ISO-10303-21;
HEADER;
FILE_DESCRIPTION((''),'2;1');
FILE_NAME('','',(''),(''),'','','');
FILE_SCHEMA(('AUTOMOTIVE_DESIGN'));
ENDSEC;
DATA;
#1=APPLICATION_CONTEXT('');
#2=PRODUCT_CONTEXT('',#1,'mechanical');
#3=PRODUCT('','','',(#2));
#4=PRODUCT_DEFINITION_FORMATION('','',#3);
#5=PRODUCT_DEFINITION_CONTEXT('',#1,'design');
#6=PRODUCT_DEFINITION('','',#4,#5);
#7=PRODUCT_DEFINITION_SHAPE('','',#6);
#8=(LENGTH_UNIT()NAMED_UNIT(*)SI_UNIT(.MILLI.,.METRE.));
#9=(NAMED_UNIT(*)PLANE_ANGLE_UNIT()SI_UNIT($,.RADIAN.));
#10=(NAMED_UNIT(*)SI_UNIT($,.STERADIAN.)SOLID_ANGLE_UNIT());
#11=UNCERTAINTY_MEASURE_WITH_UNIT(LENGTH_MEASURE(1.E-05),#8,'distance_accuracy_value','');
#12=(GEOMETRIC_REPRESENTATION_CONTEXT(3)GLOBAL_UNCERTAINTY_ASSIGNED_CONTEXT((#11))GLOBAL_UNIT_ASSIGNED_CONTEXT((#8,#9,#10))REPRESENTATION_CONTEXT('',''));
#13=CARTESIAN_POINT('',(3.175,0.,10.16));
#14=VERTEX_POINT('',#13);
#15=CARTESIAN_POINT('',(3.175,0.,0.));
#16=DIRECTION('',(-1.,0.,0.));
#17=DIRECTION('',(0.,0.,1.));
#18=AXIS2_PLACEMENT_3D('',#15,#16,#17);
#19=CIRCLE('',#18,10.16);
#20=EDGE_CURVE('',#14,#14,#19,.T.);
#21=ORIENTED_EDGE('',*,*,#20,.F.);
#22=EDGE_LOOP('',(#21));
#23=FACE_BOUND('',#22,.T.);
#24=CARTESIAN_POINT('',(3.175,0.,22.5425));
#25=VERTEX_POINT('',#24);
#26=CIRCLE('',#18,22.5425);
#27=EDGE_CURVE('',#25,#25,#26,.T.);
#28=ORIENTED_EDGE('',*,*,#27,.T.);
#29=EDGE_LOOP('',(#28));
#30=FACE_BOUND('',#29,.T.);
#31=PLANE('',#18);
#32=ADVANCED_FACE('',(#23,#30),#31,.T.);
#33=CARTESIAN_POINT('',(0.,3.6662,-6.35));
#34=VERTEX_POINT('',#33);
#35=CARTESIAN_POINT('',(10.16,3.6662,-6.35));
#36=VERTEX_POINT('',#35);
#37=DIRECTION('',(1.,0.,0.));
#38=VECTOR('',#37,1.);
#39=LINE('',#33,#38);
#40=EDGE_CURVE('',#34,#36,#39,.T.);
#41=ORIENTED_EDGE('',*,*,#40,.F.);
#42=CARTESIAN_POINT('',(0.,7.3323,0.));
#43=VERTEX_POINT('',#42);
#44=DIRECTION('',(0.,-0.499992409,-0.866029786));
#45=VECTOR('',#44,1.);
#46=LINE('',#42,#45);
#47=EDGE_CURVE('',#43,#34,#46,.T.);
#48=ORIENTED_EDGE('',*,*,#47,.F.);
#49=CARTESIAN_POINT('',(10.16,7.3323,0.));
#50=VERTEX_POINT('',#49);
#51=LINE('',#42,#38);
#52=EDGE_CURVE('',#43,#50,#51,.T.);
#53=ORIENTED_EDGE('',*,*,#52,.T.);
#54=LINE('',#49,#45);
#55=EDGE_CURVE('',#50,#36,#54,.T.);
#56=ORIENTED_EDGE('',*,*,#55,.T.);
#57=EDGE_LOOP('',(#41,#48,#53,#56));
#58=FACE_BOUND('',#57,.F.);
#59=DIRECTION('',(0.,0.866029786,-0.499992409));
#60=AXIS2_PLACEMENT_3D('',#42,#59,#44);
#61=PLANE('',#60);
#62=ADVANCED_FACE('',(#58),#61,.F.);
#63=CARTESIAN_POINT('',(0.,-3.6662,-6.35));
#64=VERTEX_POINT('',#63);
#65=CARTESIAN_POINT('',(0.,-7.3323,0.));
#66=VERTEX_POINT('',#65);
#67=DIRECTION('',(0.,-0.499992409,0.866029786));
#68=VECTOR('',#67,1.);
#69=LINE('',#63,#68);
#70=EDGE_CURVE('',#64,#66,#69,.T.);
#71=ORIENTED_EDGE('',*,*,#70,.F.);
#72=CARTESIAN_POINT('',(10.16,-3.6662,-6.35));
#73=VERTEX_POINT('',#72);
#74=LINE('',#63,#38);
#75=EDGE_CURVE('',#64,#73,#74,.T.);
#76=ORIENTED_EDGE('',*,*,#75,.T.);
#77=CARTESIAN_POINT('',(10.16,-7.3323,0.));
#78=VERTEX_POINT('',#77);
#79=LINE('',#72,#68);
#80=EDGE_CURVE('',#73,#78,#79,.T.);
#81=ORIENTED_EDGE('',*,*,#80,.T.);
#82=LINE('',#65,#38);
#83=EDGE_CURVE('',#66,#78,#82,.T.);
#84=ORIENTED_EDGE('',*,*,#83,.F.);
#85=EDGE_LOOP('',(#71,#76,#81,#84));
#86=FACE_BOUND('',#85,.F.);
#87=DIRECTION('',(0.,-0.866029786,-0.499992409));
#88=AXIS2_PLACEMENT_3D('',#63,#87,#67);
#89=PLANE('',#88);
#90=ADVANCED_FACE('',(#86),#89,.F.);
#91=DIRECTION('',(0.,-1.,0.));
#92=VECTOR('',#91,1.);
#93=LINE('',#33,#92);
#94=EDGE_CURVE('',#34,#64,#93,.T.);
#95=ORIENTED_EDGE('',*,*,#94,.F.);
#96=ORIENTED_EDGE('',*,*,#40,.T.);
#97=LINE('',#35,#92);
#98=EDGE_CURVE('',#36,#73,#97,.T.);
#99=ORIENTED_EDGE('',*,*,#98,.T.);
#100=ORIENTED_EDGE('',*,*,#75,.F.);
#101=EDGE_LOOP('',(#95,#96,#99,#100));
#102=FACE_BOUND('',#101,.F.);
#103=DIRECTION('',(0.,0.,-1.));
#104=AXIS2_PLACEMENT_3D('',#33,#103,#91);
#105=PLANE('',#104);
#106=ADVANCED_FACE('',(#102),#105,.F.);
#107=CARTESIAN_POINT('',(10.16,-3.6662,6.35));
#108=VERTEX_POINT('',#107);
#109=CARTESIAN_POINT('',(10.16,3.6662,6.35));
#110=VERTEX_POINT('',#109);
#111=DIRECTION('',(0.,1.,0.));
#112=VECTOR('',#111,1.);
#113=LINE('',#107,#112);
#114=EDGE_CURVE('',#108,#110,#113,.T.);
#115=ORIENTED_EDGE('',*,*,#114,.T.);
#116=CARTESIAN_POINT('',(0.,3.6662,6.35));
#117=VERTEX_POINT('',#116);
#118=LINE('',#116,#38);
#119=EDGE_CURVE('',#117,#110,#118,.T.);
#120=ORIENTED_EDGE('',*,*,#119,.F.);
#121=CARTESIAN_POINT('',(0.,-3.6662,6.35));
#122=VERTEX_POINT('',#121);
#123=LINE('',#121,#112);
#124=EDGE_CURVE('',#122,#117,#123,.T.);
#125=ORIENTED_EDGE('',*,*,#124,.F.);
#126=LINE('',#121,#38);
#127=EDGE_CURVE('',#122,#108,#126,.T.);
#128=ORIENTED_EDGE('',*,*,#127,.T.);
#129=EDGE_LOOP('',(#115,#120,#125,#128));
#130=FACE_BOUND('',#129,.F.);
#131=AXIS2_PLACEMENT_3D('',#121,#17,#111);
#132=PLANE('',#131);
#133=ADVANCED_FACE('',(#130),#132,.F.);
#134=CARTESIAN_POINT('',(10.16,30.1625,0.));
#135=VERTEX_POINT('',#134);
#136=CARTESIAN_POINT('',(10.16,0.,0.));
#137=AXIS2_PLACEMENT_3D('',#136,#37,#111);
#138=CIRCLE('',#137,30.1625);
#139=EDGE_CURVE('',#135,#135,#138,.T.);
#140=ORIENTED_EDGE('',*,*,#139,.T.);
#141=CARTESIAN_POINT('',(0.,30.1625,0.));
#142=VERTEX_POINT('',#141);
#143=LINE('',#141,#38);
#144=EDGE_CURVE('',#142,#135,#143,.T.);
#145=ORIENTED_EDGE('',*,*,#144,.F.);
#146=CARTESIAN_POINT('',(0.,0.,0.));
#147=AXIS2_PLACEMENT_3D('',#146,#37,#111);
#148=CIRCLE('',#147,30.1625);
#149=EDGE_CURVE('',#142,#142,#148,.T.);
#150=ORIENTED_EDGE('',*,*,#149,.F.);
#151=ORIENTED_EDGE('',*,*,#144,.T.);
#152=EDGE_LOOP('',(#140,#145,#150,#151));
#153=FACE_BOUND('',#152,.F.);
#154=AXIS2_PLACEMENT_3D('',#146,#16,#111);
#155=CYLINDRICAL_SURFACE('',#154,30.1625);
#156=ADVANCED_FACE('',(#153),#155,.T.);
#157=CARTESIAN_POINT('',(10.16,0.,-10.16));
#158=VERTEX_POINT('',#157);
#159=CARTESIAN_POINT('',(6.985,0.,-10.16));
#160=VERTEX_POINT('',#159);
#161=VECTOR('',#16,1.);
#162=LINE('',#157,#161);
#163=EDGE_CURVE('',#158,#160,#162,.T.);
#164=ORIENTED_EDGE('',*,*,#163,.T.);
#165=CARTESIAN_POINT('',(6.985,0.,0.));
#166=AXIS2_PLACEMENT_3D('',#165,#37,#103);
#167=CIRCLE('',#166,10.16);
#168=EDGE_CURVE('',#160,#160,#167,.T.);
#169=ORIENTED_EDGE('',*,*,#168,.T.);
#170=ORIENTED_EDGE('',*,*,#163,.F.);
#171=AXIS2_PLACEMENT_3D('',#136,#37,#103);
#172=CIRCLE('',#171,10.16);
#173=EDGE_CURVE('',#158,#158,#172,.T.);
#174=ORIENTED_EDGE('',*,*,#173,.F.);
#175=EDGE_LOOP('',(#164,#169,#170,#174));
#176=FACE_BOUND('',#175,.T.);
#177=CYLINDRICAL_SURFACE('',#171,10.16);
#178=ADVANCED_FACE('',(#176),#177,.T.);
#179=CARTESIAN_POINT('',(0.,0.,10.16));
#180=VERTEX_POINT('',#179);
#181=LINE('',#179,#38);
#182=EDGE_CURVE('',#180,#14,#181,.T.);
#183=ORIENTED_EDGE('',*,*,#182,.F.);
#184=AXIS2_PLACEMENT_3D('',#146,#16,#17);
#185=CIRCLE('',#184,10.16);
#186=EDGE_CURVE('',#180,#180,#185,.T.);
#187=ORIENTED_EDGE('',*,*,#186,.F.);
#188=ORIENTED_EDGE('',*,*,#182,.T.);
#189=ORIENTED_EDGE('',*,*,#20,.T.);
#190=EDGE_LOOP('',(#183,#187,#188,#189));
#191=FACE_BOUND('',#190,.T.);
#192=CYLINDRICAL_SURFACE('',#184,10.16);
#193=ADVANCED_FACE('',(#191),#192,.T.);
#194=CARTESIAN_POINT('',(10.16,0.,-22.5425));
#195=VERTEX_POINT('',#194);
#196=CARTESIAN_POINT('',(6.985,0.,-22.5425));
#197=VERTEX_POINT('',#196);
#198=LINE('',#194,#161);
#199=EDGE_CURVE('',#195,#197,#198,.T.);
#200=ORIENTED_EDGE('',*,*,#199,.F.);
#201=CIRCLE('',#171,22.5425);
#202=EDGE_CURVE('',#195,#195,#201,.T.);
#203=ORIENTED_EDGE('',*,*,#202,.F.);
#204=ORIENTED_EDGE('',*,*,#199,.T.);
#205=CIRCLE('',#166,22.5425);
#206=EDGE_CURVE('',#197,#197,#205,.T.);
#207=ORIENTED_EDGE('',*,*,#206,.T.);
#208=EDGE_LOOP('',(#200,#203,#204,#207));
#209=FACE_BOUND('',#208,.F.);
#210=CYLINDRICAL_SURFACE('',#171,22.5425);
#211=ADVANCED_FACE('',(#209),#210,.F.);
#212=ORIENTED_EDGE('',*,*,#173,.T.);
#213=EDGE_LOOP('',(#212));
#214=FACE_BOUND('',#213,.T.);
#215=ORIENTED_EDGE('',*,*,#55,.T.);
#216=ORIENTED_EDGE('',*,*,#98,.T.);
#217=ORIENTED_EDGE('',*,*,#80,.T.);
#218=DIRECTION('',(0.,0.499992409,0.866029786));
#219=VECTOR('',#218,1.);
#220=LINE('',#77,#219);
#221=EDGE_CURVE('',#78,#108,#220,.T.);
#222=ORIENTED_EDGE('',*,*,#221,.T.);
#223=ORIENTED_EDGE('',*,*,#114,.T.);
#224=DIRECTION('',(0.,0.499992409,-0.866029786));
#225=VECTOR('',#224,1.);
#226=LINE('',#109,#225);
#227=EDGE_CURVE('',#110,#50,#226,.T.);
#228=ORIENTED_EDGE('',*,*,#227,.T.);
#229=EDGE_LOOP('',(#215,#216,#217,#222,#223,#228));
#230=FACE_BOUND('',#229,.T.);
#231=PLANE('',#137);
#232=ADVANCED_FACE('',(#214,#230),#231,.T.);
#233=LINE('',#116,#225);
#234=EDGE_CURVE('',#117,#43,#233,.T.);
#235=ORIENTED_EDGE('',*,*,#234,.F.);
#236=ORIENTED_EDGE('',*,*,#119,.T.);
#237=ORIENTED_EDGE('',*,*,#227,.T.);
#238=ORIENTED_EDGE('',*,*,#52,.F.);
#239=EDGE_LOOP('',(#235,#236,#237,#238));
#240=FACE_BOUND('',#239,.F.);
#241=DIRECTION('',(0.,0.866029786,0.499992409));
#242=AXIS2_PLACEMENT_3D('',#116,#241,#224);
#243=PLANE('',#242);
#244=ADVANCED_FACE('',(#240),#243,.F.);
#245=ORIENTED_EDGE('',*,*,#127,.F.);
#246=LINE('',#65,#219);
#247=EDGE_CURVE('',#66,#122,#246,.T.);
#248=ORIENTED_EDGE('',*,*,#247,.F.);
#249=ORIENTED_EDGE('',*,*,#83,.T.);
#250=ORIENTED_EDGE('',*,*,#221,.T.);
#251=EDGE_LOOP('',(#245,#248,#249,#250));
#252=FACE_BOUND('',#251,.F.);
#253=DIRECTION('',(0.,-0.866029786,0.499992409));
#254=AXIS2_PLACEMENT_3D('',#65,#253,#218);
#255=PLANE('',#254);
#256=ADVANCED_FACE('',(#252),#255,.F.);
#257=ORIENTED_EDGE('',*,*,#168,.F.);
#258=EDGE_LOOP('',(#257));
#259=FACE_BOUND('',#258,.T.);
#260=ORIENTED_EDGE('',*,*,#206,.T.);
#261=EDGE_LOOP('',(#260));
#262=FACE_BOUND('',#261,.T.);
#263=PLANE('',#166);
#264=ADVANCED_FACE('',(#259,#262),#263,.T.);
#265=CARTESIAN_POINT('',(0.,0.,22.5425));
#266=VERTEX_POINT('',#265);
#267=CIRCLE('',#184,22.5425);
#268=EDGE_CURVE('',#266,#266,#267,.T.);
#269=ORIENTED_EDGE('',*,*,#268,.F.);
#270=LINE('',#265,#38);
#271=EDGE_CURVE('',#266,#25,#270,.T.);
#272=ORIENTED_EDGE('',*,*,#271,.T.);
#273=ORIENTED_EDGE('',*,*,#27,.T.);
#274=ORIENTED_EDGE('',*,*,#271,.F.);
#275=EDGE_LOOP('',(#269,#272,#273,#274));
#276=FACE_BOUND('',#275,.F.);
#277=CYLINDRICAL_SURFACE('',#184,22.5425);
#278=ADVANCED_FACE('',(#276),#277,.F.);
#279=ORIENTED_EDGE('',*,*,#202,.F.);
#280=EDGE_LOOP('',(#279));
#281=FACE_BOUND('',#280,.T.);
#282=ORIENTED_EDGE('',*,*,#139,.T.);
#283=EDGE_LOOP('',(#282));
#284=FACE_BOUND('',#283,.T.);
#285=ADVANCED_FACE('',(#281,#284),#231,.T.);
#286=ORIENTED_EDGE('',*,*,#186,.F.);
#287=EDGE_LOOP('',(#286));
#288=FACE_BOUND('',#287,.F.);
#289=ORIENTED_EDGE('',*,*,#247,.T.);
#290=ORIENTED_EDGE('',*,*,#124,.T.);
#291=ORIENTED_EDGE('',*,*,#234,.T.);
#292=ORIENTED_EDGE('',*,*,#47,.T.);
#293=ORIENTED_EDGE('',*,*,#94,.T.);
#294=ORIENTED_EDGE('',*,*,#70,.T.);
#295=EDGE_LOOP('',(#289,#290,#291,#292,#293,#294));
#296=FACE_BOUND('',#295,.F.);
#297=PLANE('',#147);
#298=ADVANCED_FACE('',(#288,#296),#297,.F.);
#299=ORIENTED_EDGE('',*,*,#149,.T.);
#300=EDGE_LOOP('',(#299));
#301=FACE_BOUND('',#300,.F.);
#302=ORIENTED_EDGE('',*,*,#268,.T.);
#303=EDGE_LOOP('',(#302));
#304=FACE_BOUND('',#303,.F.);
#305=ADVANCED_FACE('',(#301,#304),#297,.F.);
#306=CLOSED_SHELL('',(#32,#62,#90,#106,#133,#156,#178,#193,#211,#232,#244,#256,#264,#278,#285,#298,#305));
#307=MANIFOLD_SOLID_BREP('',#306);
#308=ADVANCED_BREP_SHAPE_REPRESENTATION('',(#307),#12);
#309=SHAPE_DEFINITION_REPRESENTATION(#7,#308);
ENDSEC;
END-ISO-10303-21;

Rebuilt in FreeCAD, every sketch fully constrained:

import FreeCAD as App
import Part
import Sketcher
Q = App.Units.Quantity

doc = App.newDocument("Part")
body = doc.addObject("PartDesign::Body", "Body")

sketch1 = doc.addObject("Sketcher::SketchObject", "Sketch")
body.addObject(sketch1)
sketch1.AttachmentSupport = (doc.YZ_Plane, [""])
sketch1.MapMode = "FlatFace"
sketch1.addGeometry(Part.Circle(App.Vector(0, 0, 0), App.Vector(0, 0, 1), 30), False)
sketch1.addGeometry(Part.LineSegment(App.Vector(4, 6, 0), App.Vector(7, 0, 0)), False)
sketch1.addGeometry(Part.LineSegment(App.Vector(7, 0, 0), App.Vector(4, -6, 0)), False)
sketch1.addGeometry(Part.LineSegment(App.Vector(4, -6, 0), App.Vector(-4, -6, 0)), False)
sketch1.addGeometry(Part.LineSegment(App.Vector(-4, -6, 0), App.Vector(-7, 0, 0)), False)
sketch1.addGeometry(Part.LineSegment(App.Vector(-7, 0, 0), App.Vector(-4, 6, 0)), False)
sketch1.addGeometry(Part.LineSegment(App.Vector(-4, 6, 0), App.Vector(4, 6, 0)), False)
sketch1.addConstraint(Sketcher.Constraint("Coincident", 1, 2, 2, 1))
sketch1.addConstraint(Sketcher.Constraint("Coincident", 2, 2, 3, 1))
sketch1.addConstraint(Sketcher.Constraint("Coincident", 3, 2, 4, 1))
sketch1.addConstraint(Sketcher.Constraint("Coincident", 4, 2, 5, 1))
sketch1.addConstraint(Sketcher.Constraint("Coincident", 5, 2, 6, 1))
sketch1.addConstraint(Sketcher.Constraint("Coincident", 6, 2, 1, 1))
sketch1.addConstraint(Sketcher.Constraint("Horizontal", 3))
sketch1.addConstraint(Sketcher.Constraint("Horizontal", 6))
sketch1.addConstraint(Sketcher.Constraint("Coincident", 0, 3, -1, 1))
sketch1.addConstraint(Sketcher.Constraint("Symmetric", 1, 2, 4, 2, -1, 1))
sketch1.addConstraint(Sketcher.Constraint("Symmetric", 2, 2, 5, 2, -1, 1))
sketch1.addConstraint(Sketcher.Constraint("PointOnObject", 1, 2, -1))
sketch1.addConstraint(Sketcher.Constraint("Parallel", 1, 4))
sketch1.addConstraint(Sketcher.Constraint("Vertical", 3, 2, 5, 2))
sketch1.addConstraint(Sketcher.Constraint("Diameter", 0, Q("2.375 in")))
sketch1.addConstraint(Sketcher.Constraint("DistanceY", 3, 2, 5, 2, Q("0.5 in")))
sketch1.addConstraint(Sketcher.Constraint("Angle", 1, Q("-60.0005 deg")))
sketch1.addConstraint(Sketcher.Constraint("DistanceX", 3, 2, 1, 2, Q("0.433 in")))
pad1 = doc.addObject("PartDesign::Pad", "Pad")
body.addObject(pad1)
pad1.Profile = sketch1
pad1.Length = Q("0.4 in")

sketch2 = doc.addObject("Sketcher::SketchObject", "Sketch001")
body.addObject(sketch2)
sketch2.AttachmentSupport = (doc.YZ_Plane, [""])
sketch2.MapMode = "FlatFace"
sketch2.AttachmentOffset = App.Placement(App.Vector(0, 0, 0.4 * 25.4), App.Rotation())
sketch2.addGeometry(Part.Circle(App.Vector(0, 0, 0), App.Vector(0, 0, 1), 23), False)
sketch2.addGeometry(Part.Circle(App.Vector(0, 0, 0), App.Vector(0, 0, 1), 10), False)
sketch2.addConstraint(Sketcher.Constraint("Coincident", 0, 3, -1, 1))
sketch2.addConstraint(Sketcher.Constraint("Coincident", 1, 3, -1, 1))
sketch2.addConstraint(Sketcher.Constraint("Diameter", 1, Q("0.8 in")))
sketch2.addConstraint(Sketcher.Constraint("Diameter", 0, Q("1.775 in")))
pocket1 = doc.addObject("PartDesign::Pocket", "Pocket")
body.addObject(pocket1)
pocket1.Profile = sketch2
pocket1.Length = Q("0.125 in")

sketch3 = doc.addObject("Sketcher::SketchObject", "Sketch002")
body.addObject(sketch3)
sketch3.AttachmentSupport = (doc.YZ_Plane, [""])
sketch3.MapMode = "FlatFace"
sketch3.addGeometry(Part.Circle(App.Vector(0, 0, 0), App.Vector(0, 0, 1), 23), False)
sketch3.addGeometry(Part.Circle(App.Vector(0, 0, 0), App.Vector(0, 0, 1), 10), False)
sketch3.addConstraint(Sketcher.Constraint("Coincident", 0, 3, -1, 1))
sketch3.addConstraint(Sketcher.Constraint("Coincident", 1, 3, -1, 1))
sketch3.addConstraint(Sketcher.Constraint("Diameter", 1, Q("0.8 in")))
sketch3.addConstraint(Sketcher.Constraint("Diameter", 0, Q("1.775 in")))
pocket2 = doc.addObject("PartDesign::Pocket", "Pocket001")
body.addObject(pocket2)
pocket2.Profile = sketch3
pocket2.Length = Q("0.125 in")
pocket2.Reversed = True

doc.recompute()
